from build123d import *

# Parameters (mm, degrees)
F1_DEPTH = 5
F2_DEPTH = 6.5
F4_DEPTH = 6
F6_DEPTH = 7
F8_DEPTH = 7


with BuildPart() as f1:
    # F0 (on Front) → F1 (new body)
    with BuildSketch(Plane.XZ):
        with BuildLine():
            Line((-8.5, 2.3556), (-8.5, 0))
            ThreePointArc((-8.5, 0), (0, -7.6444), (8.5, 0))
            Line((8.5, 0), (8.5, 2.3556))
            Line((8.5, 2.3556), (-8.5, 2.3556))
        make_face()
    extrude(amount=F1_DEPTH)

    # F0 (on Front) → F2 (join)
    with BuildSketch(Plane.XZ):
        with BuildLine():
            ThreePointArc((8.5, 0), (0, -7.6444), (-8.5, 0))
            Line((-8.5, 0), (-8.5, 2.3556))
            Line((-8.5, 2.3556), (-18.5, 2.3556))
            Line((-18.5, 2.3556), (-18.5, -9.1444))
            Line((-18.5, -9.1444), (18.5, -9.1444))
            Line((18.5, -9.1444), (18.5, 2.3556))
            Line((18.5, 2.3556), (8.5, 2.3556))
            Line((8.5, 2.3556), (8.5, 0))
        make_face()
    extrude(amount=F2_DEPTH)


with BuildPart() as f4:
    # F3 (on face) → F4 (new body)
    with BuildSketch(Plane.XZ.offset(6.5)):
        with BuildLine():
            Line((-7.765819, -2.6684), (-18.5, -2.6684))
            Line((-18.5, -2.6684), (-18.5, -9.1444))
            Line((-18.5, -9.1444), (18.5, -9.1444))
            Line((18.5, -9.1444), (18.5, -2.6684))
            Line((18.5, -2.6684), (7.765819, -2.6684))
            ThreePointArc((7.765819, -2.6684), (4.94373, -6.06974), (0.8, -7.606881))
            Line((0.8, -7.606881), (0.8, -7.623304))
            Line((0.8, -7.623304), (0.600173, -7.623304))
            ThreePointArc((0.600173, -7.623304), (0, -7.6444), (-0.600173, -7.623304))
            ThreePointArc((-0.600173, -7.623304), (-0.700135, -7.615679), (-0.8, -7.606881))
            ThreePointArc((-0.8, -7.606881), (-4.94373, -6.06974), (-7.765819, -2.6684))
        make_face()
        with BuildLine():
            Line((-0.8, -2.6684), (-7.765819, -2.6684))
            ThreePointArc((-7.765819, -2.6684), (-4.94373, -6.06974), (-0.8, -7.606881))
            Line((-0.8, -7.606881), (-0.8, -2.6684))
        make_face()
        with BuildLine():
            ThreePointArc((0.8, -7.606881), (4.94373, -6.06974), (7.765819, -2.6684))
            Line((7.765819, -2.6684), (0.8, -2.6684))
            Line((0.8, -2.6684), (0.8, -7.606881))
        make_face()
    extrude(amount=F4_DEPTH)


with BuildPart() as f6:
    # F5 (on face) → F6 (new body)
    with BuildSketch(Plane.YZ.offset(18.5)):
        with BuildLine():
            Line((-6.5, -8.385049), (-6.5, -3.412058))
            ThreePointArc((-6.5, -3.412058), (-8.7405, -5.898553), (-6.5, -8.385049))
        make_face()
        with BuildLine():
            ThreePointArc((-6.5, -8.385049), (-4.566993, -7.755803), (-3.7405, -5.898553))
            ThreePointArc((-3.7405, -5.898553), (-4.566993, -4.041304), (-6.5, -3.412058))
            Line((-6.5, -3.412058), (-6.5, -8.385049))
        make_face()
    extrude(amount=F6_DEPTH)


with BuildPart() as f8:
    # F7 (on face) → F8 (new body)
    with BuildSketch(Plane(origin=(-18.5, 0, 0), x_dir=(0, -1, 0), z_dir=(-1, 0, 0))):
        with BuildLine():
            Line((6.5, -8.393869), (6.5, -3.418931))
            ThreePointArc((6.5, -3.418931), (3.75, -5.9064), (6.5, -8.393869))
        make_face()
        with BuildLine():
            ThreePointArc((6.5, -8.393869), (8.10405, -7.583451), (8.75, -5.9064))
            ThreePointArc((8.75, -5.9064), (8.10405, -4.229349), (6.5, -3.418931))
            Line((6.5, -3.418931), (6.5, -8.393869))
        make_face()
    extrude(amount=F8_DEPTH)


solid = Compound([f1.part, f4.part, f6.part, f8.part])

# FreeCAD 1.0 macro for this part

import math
import FreeCAD as App
import Part
import Sketcher
from FreeCAD import Vector

doc = App.newDocument("Part")
body = doc.addObject("PartDesign::Body", "Body")

# Sketch on XZ plane
sketch1 = body.newObject("Sketcher::SketchObject", "Sketch")
sketch1.AttachmentSupport = (doc.getObject("XZ_Plane"), [""])
sketch1.MapMode = "FlatFace"
sketch1.addGeometry([
    Part.LineSegment(Vector(-8.5, 2.3556, 0), Vector(-8.5, 0, 0)),
    Part.ArcOfCircle(Part.Circle(Vector(0, 0.903482, 0), Vector(0, 0, 1), 8.547882), math.radians(-173.932701), math.radians(-6.067299)),
    Part.LineSegment(Vector(8.5, 0, 0), Vector(8.5, 2.3556, 0)),
    Part.LineSegment(Vector(8.5, 2.3556, 0), Vector(-8.5, 2.3556, 0)),
], False)
sketch1.addConstraint([
    Sketcher.Constraint("Coincident", 0, 2, 1, 1),
    Sketcher.Constraint("Coincident", 1, 2, 2, 1),
    Sketcher.Constraint("Coincident", 2, 2, 3, 1),
    Sketcher.Constraint("Coincident", 3, 2, 0, 1),
    Sketcher.Constraint("Vertical", 0),
    Sketcher.Constraint("Vertical", 2),
    Sketcher.Constraint("Horizontal", 3),
    Sketcher.Constraint("Symmetric", 0, 2, 1, 2, -1, 1),
    Sketcher.Constraint("PointOnObject", 1, 3, -2),
    Sketcher.Constraint("DistanceX", 3, 2, 3, 1, 17.0),
    Sketcher.Constraint("Radius", 1, 8.547882),
    Sketcher.Constraint("DistanceY", 0, 2, 0, 1, 2.3556),
])
pad1 = body.newObject("PartDesign::Pad", "Pad")
pad1.Profile = sketch1
pad1.Length = 5

# Sketch on XZ plane
sketch2 = body.newObject("Sketcher::SketchObject", "Sketch001")
sketch2.AttachmentSupport = (doc.getObject("XZ_Plane"), [""])
sketch2.MapMode = "FlatFace"
sketch2.addGeometry([
    Part.ArcOfCircle(Part.Circle(Vector(0, 0.903482, 0), Vector(0, 0, 1), 8.547882), math.radians(-173.932701), math.radians(-6.067299)),  # 0
    Part.LineSegment(Vector(-8.5, 0, 0), Vector(-8.5, 2.3556, 0)),  # 1
    Part.LineSegment(Vector(-8.5, 2.3556, 0), Vector(-18.5, 2.3556, 0)),  # 2
    Part.LineSegment(Vector(-18.5, 2.3556, 0), Vector(-18.5, -9.1444, 0)),  # 3
    Part.LineSegment(Vector(-18.5, -9.1444, 0), Vector(18.5, -9.1444, 0)),  # 4
    Part.LineSegment(Vector(18.5, -9.1444, 0), Vector(18.5, 2.3556, 0)),  # 5
    Part.LineSegment(Vector(18.5, 2.3556, 0), Vector(8.5, 2.3556, 0)),  # 6
    Part.LineSegment(Vector(8.5, 2.3556, 0), Vector(8.5, 0, 0)),  # 7
], False)
sketch2.addConstraint([
    Sketcher.Constraint("Coincident", 0, 1, 1, 1),
    Sketcher.Constraint("Coincident", 1, 2, 2, 1),
    Sketcher.Constraint("Coincident", 2, 2, 3, 1),
    Sketcher.Constraint("Coincident", 3, 2, 4, 1),
    Sketcher.Constraint("Coincident", 4, 2, 5, 1),
    Sketcher.Constraint("Coincident", 5, 2, 6, 1),
    Sketcher.Constraint("Coincident", 6, 2, 7, 1),
    Sketcher.Constraint("Coincident", 7, 2, 0, 2),
    Sketcher.Constraint("Vertical", 1),
    Sketcher.Constraint("Horizontal", 2),
    Sketcher.Constraint("Vertical", 3),
    Sketcher.Constraint("Horizontal", 4),
    Sketcher.Constraint("Vertical", 5),
    Sketcher.Constraint("Horizontal", 6),
    Sketcher.Constraint("Vertical", 7),
    Sketcher.Constraint("Symmetric", 0, 1, 7, 2, -1, 1),
    Sketcher.Constraint("Symmetric", 2, 2, 5, 2, -2),
    Sketcher.Constraint("PointOnObject", 0, 3, -2),
    Sketcher.Constraint("DistanceX", 2, 2, 2, 1, 10.0),
    Sketcher.Constraint("DistanceX", 4, 1, 4, 2, 37.0),
    Sketcher.Constraint("DistanceY", 3, 2, 3, 1, 11.5),
    Sketcher.Constraint("Radius", 0, 8.547882),
    Sketcher.Constraint("DistanceY", 1, 1, 1, 2, 2.3556),
])
pad2 = body.newObject("PartDesign::Pad", "Pad001")
pad2.Profile = sketch2
pad2.Length = 6.5
body2 = doc.addObject("PartDesign::Body", "Body001")

# Sketch on XZ plane
sketch3 = body2.newObject("Sketcher::SketchObject", "Sketch002")
sketch3.AttachmentSupport = (doc.getObject("XZ_Plane001"), [""])
sketch3.MapMode = "FlatFace"
sketch3.AttachmentOffset = App.Placement(Vector(0, 0, 6.5), App.Rotation())
sketch3.addGeometry([
    Part.LineSegment(Vector(-18.5, -2.6684, 0), Vector(-18.5, -9.1444, 0)),  # 0
    Part.LineSegment(Vector(-18.5, -9.1444, 0), Vector(18.5, -9.1444, 0)),  # 1
    Part.LineSegment(Vector(18.5, -9.1444, 0), Vector(18.5, -2.6684, 0)),  # 2
    Part.LineSegment(Vector(18.5, -2.6684, 0), Vector(0.8, -2.6684, 0)),  # 3
    Part.LineSegment(Vector(0.8, -2.6684, 0), Vector(0.8, -7.623304, 0)),  # 4
    Part.LineSegment(Vector(0.8, -7.623304, 0), Vector(0.600173, -7.623304, 0)),  # 5
    Part.ArcOfCircle(Part.Circle(Vector(0, 0.903492, 0), Vector(0, 0, 1), 8.547892), math.radians(-94.02622), math.radians(-85.97378)),  # 6
    Part.ArcOfCircle(Part.Circle(Vector(-0.000703, 0.894668, 0), Vector(0, 0, 1), 8.539041), math.radians(-95.371038), math.radians(-94.025675)),  # 7
    Part.LineSegment(Vector(-0.8, -7.606881, 0), Vector(-0.8, -2.6684, 0)),  # 8
    Part.LineSegment(Vector(-0.8, -2.6684, 0), Vector(-18.5, -2.6684, 0)),  # 9
], False)
sketch3.addConstraint([
    Sketcher.Constraint("Coincident", 0, 2, 1, 1),
    Sketcher.Constraint("Coincident", 1, 2, 2, 1),
    Sketcher.Constraint("Coincident", 2, 2, 3, 1),
    Sketcher.Constraint("Coincident", 3, 2, 4, 1),
    Sketcher.Constraint("Coincident", 4, 2, 5, 1),
    Sketcher.Constraint("Coincident", 5, 2, 6, 2),
    Sketcher.Constraint("Coincident", 6, 1, 7, 2),
    Sketcher.Constraint("Coincident", 7, 1, 8, 1),
    Sketcher.Constraint("Coincident", 8, 2, 9, 1),
    Sketcher.Constraint("Coincident", 9, 2, 0, 1),
    Sketcher.Constraint("Vertical", 0),
    Sketcher.Constraint("Horizontal", 1),
    Sketcher.Constraint("Vertical", 2),
    Sketcher.Constraint("Horizontal", 3),
    Sketcher.Constraint("Vertical", 4),
    Sketcher.Constraint("Horizontal", 5),
    Sketcher.Constraint("Vertical", 8),
    Sketcher.Constraint("Horizontal", 9),
    Sketcher.Constraint("Symmetric", 5, 2, 6, 1, -2),
    Sketcher.Constraint("Symmetric", 3, 2, 8, 2, -2),
    Sketcher.Constraint("Equal", 3, 9),
    Sketcher.Constraint("DistanceX", 1, 1, 1, 2, 37.0),
    Sketcher.Constraint("DistanceX", 3, 2, 3, 1, 17.7),
    Sketcher.Constraint("DistanceY", 0, 2, 0, 1, 6.476),
    Sketcher.Constraint("Radius", 7, 8.539041),
    Sketcher.Constraint("Radius", 6, 8.547892),
    Sketcher.Constraint("DistanceY", 8, 1, 8, 2, 4.938481),
    Sketcher.Constraint("DistanceY", 0, 2, -1, 1, 9.1444),
    Sketcher.Constraint("DistanceX", 5, 2, 5, 1, 0.199827),
    Sketcher.Constraint("DistanceY", 4, 2, 4, 1, 4.954904),
])
pad3 = body2.newObject("PartDesign::Pad", "Pad002")
pad3.Profile = sketch3
pad3.Length = 6
body3 = doc.addObject("PartDesign::Body", "Body002")

# Sketch on YZ plane
sketch4 = body3.newObject("Sketcher::SketchObject", "Sketch003")
sketch4.AttachmentSupport = (doc.getObject("YZ_Plane002"), [""])
sketch4.MapMode = "FlatFace"
sketch4.AttachmentOffset = App.Placement(Vector(0, 0, 18.5), App.Rotation())
sketch4.addGeometry([
    Part.ArcOfCircle(Part.Circle(Vector(-6.2405, -5.898554, 0), Vector(0, 0, 1), 2.5), math.radians(95.958034), math.radians(264.041966)),
    Part.ArcOfCircle(Part.Circle(Vector(-6.240499, -5.898554, 0), Vector(0, 0, 1), 2.499999), math.radians(-95.958047), math.radians(0.000025)),
    Part.ArcOfCircle(Part.Circle(Vector(-6.240499, -5.898553, 0), Vector(0, 0, 1), 2.499999), math.radians(-0.000002), math.radians(95.958047)),
], False)
sketch4.addConstraint([
    Sketcher.Constraint("Tangent", 0, 2, 1, 1),
    Sketcher.Constraint("Tangent", 1, 2, 2, 1),
    Sketcher.Constraint("Tangent", 2, 2, 0, 1),
    Sketcher.Constraint("Horizontal", 2, 3, 1, 2),
    Sketcher.Constraint("Vertical", 0, 2, 2, 2),
    Sketcher.Constraint("Radius", 0, 2.5),
    Sketcher.Constraint("DistanceX", 0, 2, -1, 1, 6.5),
    Sketcher.Constraint("DistanceX", 0, 3, -1, 1, 6.2405),
    Sketcher.Constraint("DistanceY", 0, 2, -1, 1, 8.385049),
])
pad4 = body3.newObject("PartDesign::Pad", "Pad003")
pad4.Profile = sketch4
pad4.Length = 7
body4 = doc.addObject("PartDesign::Body", "Body003")

# Sketch on YZ plane
sketch5 = body4.newObject("Sketcher::SketchObject", "Sketch004")
sketch5.AttachmentSupport = (doc.getObject("YZ_Plane003"), [""])
sketch5.MapMode = "FlatFace"
sketch5.AttachmentOffset = App.Placement(Vector(0, 0, -18.5), App.Rotation())
sketch5.addGeometry([
    Part.ArcOfCircle(Part.Circle(Vector(-6.25, -5.9064, 0), Vector(0, 0, 1), 2.5), math.radians(-95.739161), math.radians(95.739161)),
    Part.ArcOfCircle(Part.Circle(Vector(-6.25, -5.9064, 0), Vector(0, 0, 1), 2.5), math.radians(179.99999), math.radians(264.260831)),
    Part.ArcOfCircle(Part.Circle(Vector(-6.25, -5.9064, 0), Vector(0, 0, 1), 2.5), math.radians(95.739169), math.radians(180.00001)),
], False)
sketch5.addConstraint([
    Sketcher.Constraint("Tangent", 0, 1, 1, 2),
    Sketcher.Constraint("Tangent", 1, 1, 2, 2),
    Sketcher.Constraint("Tangent", 2, 1, 0, 2),
    Sketcher.Constraint("Horizontal", 2, 3, 1, 1),
    Sketcher.Constraint("Vertical", 0, 1, 2, 1),
    Sketcher.Constraint("Radius", 0, 2.5),
    Sketcher.Constraint("DistanceX", 0, 1, -1, 1, 6.5),
    Sketcher.Constraint("DistanceX", 0, 3, -1, 1, 6.25),
    Sketcher.Constraint("DistanceY", 0, 3, -1, 1, 5.9064),
])
pad5 = body4.newObject("PartDesign::Pad", "Pad004")
pad5.Profile = sketch5
pad5.Length = 7
pad5.Reversed = True

doc.recompute()
